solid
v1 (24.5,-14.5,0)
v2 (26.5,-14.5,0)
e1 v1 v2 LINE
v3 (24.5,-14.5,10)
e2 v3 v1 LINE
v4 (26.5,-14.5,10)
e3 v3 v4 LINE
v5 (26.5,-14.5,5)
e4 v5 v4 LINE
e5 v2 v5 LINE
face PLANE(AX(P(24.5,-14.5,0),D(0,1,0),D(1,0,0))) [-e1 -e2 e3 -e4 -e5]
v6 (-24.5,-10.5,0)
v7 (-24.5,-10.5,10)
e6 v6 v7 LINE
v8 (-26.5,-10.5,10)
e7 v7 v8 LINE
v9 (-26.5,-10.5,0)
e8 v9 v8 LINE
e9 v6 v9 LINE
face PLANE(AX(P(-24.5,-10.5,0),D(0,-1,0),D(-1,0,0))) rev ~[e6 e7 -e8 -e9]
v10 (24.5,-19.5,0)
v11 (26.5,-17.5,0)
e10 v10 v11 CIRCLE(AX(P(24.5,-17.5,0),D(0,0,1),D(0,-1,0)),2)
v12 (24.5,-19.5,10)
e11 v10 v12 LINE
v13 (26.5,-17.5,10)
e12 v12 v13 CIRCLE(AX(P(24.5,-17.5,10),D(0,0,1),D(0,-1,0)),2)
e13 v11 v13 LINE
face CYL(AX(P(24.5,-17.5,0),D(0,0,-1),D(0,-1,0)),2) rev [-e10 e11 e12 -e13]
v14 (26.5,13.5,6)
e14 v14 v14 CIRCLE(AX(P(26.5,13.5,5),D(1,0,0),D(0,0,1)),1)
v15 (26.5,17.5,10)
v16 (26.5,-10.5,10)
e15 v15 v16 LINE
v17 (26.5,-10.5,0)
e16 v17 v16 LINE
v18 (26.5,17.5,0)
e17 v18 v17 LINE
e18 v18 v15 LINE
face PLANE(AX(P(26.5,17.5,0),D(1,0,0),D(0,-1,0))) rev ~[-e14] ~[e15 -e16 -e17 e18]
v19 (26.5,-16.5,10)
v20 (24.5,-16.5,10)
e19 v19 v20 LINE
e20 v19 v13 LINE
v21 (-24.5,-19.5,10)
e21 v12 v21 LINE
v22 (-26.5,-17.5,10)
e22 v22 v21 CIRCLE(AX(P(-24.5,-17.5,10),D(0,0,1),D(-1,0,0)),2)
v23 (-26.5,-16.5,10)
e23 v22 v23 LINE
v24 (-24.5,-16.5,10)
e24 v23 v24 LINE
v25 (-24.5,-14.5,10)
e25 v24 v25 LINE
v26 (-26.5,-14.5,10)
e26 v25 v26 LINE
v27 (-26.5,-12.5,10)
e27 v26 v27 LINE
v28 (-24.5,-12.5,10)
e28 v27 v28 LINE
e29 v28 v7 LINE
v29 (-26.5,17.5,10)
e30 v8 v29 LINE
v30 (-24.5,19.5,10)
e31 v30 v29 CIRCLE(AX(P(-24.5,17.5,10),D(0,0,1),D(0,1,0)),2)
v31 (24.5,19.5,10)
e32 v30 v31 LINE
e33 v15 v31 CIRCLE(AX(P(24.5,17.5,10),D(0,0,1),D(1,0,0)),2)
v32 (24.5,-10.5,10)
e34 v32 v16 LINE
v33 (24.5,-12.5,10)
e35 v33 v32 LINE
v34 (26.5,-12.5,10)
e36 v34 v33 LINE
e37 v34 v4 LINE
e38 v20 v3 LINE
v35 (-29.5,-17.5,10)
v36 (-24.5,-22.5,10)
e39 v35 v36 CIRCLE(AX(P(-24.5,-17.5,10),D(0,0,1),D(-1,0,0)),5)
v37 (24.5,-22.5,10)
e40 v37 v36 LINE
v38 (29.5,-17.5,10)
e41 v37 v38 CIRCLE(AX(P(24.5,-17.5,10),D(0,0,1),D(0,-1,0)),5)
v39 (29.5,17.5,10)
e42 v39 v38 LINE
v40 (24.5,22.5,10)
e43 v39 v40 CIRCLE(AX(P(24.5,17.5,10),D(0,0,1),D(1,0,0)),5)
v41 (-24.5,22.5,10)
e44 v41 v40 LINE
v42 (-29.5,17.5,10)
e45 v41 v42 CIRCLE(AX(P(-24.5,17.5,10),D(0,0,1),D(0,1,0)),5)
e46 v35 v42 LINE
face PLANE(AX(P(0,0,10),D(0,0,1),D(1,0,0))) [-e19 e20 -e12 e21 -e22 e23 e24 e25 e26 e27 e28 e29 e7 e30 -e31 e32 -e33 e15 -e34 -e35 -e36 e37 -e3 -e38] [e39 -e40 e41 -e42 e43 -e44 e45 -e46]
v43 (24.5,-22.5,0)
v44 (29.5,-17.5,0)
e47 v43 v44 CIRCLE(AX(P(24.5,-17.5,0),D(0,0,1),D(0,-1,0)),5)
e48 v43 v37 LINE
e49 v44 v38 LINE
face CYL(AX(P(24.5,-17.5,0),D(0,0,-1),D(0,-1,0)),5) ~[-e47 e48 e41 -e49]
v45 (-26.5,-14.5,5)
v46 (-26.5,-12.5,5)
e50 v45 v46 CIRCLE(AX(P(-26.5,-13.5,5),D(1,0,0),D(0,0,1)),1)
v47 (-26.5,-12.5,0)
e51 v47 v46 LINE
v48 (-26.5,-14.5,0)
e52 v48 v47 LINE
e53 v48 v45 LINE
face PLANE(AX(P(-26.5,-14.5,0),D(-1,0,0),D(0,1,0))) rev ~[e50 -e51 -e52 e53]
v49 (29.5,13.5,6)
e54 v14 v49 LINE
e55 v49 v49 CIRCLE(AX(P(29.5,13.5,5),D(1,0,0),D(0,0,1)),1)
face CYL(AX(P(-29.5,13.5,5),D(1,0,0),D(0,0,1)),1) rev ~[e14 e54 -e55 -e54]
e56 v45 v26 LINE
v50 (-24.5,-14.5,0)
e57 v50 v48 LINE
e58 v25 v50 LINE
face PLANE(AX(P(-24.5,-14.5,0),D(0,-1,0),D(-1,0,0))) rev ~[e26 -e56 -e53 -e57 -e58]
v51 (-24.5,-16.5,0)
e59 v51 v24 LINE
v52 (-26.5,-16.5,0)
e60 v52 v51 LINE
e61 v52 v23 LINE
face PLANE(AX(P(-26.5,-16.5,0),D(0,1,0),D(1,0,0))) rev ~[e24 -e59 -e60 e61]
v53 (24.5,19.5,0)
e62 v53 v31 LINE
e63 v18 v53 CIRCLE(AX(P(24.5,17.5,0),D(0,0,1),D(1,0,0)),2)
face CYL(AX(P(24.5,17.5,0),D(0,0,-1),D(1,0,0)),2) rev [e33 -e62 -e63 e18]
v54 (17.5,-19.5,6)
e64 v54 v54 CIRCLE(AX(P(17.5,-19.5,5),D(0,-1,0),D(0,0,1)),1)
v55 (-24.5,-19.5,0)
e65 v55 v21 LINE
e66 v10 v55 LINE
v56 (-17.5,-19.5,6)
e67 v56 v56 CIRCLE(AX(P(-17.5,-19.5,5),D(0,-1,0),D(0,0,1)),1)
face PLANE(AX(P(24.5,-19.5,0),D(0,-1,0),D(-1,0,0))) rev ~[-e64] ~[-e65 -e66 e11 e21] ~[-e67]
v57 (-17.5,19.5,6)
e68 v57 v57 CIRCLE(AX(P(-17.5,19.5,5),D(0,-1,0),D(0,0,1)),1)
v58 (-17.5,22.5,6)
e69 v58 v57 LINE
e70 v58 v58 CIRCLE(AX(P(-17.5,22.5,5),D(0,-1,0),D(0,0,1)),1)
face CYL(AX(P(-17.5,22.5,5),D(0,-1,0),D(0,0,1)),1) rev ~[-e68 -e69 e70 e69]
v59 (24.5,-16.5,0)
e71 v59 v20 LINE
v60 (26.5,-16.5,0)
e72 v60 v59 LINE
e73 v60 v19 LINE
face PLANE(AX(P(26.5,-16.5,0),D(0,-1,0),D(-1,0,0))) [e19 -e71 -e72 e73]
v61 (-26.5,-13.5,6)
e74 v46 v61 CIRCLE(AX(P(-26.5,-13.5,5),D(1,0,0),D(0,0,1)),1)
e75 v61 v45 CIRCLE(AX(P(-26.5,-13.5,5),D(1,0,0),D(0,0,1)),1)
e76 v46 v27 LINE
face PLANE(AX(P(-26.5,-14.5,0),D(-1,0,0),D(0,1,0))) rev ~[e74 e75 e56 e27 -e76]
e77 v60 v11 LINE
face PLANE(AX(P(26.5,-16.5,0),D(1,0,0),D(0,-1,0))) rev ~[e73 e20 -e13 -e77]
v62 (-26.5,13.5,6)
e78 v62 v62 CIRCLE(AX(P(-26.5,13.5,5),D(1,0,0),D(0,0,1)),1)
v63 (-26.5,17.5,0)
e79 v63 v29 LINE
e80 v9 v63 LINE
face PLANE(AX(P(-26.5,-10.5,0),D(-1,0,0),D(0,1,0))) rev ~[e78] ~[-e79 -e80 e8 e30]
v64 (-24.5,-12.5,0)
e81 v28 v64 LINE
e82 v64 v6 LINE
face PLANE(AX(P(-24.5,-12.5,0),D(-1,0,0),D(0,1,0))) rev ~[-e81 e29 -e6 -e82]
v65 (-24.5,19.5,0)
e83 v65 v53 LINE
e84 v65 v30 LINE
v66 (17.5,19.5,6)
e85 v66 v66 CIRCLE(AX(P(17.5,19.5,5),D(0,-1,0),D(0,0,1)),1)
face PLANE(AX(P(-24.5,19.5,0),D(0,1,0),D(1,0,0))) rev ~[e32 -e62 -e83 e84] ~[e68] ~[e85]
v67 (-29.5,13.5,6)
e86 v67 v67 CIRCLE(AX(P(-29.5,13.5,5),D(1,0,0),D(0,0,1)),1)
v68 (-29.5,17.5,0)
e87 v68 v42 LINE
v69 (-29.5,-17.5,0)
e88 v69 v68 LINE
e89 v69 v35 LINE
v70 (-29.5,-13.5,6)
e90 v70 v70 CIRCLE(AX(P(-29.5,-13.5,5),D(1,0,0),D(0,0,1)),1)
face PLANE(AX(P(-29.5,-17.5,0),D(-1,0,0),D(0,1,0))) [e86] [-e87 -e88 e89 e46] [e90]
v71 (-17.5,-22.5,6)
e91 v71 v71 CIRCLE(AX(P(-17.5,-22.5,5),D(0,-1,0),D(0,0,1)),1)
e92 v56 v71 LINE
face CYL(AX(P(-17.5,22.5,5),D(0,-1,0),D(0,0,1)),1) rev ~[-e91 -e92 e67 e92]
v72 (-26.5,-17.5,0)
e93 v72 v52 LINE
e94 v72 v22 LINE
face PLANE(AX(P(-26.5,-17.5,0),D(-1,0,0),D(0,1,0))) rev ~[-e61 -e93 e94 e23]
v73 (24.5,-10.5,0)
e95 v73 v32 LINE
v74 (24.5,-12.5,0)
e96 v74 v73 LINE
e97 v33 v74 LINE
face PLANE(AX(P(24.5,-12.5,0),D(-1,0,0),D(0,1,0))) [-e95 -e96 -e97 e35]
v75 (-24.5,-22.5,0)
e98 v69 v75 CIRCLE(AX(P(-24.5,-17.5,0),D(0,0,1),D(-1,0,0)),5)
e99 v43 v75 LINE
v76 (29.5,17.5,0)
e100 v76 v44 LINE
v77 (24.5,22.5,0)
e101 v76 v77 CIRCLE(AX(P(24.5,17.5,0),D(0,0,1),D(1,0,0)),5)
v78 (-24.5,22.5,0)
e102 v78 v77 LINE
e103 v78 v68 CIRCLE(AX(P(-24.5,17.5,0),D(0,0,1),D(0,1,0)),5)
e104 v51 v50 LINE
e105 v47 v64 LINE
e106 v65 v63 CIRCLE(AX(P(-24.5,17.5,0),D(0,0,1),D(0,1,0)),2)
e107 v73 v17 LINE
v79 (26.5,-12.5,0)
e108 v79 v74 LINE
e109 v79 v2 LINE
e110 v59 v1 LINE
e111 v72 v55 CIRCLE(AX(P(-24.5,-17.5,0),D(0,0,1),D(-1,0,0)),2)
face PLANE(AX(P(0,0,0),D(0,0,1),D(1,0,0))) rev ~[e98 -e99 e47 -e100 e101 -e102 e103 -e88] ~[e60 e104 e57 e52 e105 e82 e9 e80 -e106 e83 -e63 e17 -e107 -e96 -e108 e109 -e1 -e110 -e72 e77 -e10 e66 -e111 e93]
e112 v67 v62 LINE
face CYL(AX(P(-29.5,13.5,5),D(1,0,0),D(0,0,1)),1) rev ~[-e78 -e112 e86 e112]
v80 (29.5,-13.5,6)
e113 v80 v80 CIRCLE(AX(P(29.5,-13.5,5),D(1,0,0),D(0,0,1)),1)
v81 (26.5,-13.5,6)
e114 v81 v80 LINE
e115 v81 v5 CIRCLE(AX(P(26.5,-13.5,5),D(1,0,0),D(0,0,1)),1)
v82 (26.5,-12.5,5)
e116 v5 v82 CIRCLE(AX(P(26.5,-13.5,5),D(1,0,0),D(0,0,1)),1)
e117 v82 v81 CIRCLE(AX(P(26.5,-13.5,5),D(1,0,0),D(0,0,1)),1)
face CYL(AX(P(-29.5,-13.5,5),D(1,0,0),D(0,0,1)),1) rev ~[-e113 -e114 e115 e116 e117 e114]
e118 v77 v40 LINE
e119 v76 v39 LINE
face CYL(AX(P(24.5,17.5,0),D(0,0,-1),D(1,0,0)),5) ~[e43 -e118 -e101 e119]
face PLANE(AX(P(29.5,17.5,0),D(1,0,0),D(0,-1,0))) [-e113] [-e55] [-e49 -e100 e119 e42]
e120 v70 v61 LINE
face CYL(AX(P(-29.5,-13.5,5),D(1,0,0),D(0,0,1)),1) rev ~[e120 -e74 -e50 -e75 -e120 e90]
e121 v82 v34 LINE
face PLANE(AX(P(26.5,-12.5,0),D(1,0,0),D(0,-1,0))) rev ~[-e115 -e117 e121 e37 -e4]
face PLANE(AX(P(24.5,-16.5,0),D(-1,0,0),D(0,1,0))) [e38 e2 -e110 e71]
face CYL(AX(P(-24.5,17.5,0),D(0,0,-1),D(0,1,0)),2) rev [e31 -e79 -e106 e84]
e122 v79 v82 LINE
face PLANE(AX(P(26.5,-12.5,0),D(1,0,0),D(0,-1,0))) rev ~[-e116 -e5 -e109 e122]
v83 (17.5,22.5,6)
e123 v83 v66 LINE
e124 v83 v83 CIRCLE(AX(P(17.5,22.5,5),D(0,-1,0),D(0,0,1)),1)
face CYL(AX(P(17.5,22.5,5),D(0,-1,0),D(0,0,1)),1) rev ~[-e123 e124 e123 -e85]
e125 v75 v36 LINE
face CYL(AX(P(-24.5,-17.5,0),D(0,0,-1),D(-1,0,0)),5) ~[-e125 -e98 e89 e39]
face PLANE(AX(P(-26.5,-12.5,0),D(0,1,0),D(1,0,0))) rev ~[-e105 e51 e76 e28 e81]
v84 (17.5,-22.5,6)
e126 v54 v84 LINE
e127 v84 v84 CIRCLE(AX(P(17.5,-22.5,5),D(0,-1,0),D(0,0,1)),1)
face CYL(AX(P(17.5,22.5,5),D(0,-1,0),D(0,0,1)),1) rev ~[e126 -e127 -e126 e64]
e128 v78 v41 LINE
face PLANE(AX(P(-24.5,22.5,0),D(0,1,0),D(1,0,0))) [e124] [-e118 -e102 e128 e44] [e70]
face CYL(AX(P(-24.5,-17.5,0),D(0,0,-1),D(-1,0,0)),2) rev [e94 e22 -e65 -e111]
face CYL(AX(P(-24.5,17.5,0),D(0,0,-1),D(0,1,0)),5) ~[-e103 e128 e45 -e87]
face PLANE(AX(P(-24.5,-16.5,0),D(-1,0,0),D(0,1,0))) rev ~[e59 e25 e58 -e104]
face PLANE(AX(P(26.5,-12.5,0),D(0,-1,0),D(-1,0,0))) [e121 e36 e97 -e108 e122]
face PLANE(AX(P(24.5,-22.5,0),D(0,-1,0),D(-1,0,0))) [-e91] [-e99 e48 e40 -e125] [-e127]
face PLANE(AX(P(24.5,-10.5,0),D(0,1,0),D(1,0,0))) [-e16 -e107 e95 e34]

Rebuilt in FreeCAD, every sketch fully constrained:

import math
import FreeCAD as App
import Part
import Sketcher
from FreeCAD import Vector

doc = App.newDocument("Part")
body = doc.addObject("PartDesign::Body", "Body")

# Sketch on XY plane
sketch1 = body.newObject("Sketcher::SketchObject", "Sketch")
sketch1.AttachmentSupport = (doc.getObject("XY_Plane"), [""])
sketch1.MapMode = "FlatFace"
sketch1.addGeometry(Part.LineSegment(Vector(24.5, 22.5, 0), Vector(-24.5, 22.5, 0)), False)
sketch1.addGeometry(Part.ArcOfCircle(Part.Circle(Vector(-24.5, 17.5, 0), Vector(0, 0, 1), 5), math.radians(90), math.radians(180)), False)
sketch1.addGeometry(Part.LineSegment(Vector(-29.5, 17.5, 0), Vector(-29.5, -17.5, 0)), False)
sketch1.addGeometry(Part.ArcOfCircle(Part.Circle(Vector(-24.5, -17.5, 0), Vector(0, 0, 1), 5), math.radians(180), math.radians(270)), False)
sketch1.addGeometry(Part.LineSegment(Vector(-24.5, -22.5, 0), Vector(24.5, -22.5, 0)), False)
sketch1.addGeometry(Part.ArcOfCircle(Part.Circle(Vector(24.5, -17.5, 0), Vector(0, 0, 1), 5), math.radians(-90), math.radians(0)), False)
sketch1.addGeometry(Part.LineSegment(Vector(29.5, -17.5, 0), Vector(29.5, 17.5, 0)), False)
sketch1.addGeometry(Part.ArcOfCircle(Part.Circle(Vector(24.5, 17.5, 0), Vector(0, 0, 1), 5), math.radians(0), math.radians(90)), False)
sketch1.addGeometry(Part.ArcOfCircle(Part.Circle(Vector(-24.5, 17.5, 0), Vector(0, 0, 1), 2), math.radians(90), math.radians(180)), False)
sketch1.addGeometry(Part.LineSegment(Vector(-24.5, 19.5, 0), Vector(24.5, 19.5, 0)), False)
sketch1.addGeometry(Part.ArcOfCircle(Part.Circle(Vector(24.5, 17.5, 0), Vector(0, 0, 1), 2), math.radians(0), math.radians(90)), False)
sketch1.addGeometry(Part.LineSegment(Vector(26.5, 17.5, 0), Vector(26.5, -10.5, 0)), False)
sketch1.addGeometry(Part.LineSegment(Vector(26.5, -10.5, 0), Vector(24.5, -10.5, 0)), False)
sketch1.addGeometry(Part.LineSegment(Vector(24.5, -10.5, 0), Vector(24.5, -12.5, 0)), False)
sketch1.addGeometry(Part.LineSegment(Vector(24.5, -12.5, 0), Vector(26.5, -12.5, 0)), False)
sketch1.addGeometry(Part.LineSegment(Vector(26.5, -12.5, 0), Vector(26.5, -14.5, 0)), False)
sketch1.addGeometry(Part.LineSegment(Vector(26.5, -14.5, 0), Vector(24.5, -14.5, 0)), False)
sketch1.addGeometry(Part.LineSegment(Vector(24.5, -14.5, 0), Vector(24.5, -16.5, 0)), False)
sketch1.addGeometry(Part.LineSegment(Vector(24.5, -16.5, 0), Vector(26.5, -16.5, 0)), False)
sketch1.addGeometry(Part.LineSegment(Vector(26.5, -16.5, 0), Vector(26.5, -17.5, 0)), False)
sketch1.addGeometry(Part.ArcOfCircle(Part.Circle(Vector(24.5, -17.5, 0), Vector(0, 0, 1), 2), math.radians(-90), math.radians(0)), False)
sketch1.addGeometry(Part.LineSegment(Vector(24.5, -19.5, 0), Vector(-24.5, -19.5, 0)), False)
sketch1.addGeometry(Part.ArcOfCircle(Part.Circle(Vector(-24.5, -17.5, 0), Vector(0, 0, 1), 2), math.radians(180), math.radians(270)), False)
sketch1.addGeometry(Part.LineSegment(Vector(-26.5, -17.5, 0), Vector(-26.5, -16.5, 0)), False)
sketch1.addGeometry(Part.LineSegment(Vector(-26.5, -16.5, 0), Vector(-24.5, -16.5, 0)), False)
sketch1.addGeometry(Part.LineSegment(Vector(-24.5, -16.5, 0), Vector(-24.5, -14.5, 0)), False)
sketch1.addGeometry(Part.LineSegment(Vector(-24.5, -14.5, 0), Vector(-26.5, -14.5, 0)), False)
sketch1.addGeometry(Part.LineSegment(Vector(-26.5, -14.5, 0), Vector(-26.5, -12.5, 0)), False)
sketch1.addGeometry(Part.LineSegment(Vector(-26.5, -12.5, 0), Vector(-24.5, -12.5, 0)), False)
sketch1.addGeometry(Part.LineSegment(Vector(-24.5, -12.5, 0), Vector(-24.5, -10.5, 0)), False)
sketch1.addGeometry(Part.LineSegment(Vector(-24.5, -10.5, 0), Vector(-26.5, -10.5, 0)), False)
sketch1.addGeometry(Part.LineSegment(Vector(-26.5, -10.5, 0), Vector(-26.5, 17.5, 0)), False)
sketch1.addConstraint(Sketcher.Constraint("Tangent", 0, 2, 1, 1))
sketch1.addConstraint(Sketcher.Constraint("Tangent", 1, 2, 2, 1))
sketch1.addConstraint(Sketcher.Constraint("Tangent", 2, 2, 3, 1))
sketch1.addConstraint(Sketcher.Constraint("Tangent", 3, 2, 4, 1))
sketch1.addConstraint(Sketcher.Constraint("Tangent", 4, 2, 5, 1))
sketch1.addConstraint(Sketcher.Constraint("Tangent", 5, 2, 6, 1))
sketch1.addConstraint(Sketcher.Constraint("Tangent", 6, 2, 7, 1))
sketch1.addConstraint(Sketcher.Constraint("Tangent", 7, 2, 0, 1))
sketch1.addConstraint(Sketcher.Constraint("Tangent", 8, 1, 9, 1))
sketch1.addConstraint(Sketcher.Constraint("Tangent", 9, 2, 10, 2))
sketch1.addConstraint(Sketcher.Constraint("Tangent", 10, 1, 11, 1))
sketch1.addConstraint(Sketcher.Constraint("Coincident", 11, 2, 12, 1))
sketch1.addConstraint(Sketcher.Constraint("Coincident", 12, 2, 13, 1))
sketch1.addConstraint(Sketcher.Constraint("Coincident", 13, 2, 14, 1))
sketch1.addConstraint(Sketcher.Constraint("Coincident", 14, 2, 15, 1))
sketch1.addConstraint(Sketcher.Constraint("Coincident", 15, 2, 16, 1))
sketch1.addConstraint(Sketcher.Constraint("Coincident", 16, 2, 17, 1))
sketch1.addConstraint(Sketcher.Constraint("Coincident", 17, 2, 18, 1))
sketch1.addConstraint(Sketcher.Constraint("Coincident", 18, 2, 19, 1))
sketch1.addConstraint(Sketcher.Constraint("Tangent", 19, 2, 20, 2))
sketch1.addConstraint(Sketcher.Constraint("Tangent", 20, 1, 21, 1))
sketch1.addConstraint(Sketcher.Constraint("Tangent", 21, 2, 22, 2))
sketch1.addConstraint(Sketcher.Constraint("Tangent", 22, 1, 23, 1))
sketch1.addConstraint(Sketcher.Constraint("Coincident", 23, 2, 24, 1))
sketch1.addConstraint(Sketcher.Constraint("Coincident", 24, 2, 25, 1))
sketch1.addConstraint(Sketcher.Constraint("Coincident", 25, 2, 26, 1))
sketch1.addConstraint(Sketcher.Constraint("Coincident", 26, 2, 27, 1))
sketch1.addConstraint(Sketcher.Constraint("Coincident", 27, 2, 28, 1))
sketch1.addConstraint(Sketcher.Constraint("Coincident", 28, 2, 29, 1))
sketch1.addConstraint(Sketcher.Constraint("Coincident", 29, 2, 30, 1))
sketch1.addConstraint(Sketcher.Constraint("Coincident", 30, 2, 31, 1))
sketch1.addConstraint(Sketcher.Constraint("Tangent", 31, 2, 8, 2))
sketch1.addConstraint(Sketcher.Constraint("Horizontal", 0))
sketch1.addConstraint(Sketcher.Constraint("Vertical", 2))
sketch1.addConstraint(Sketcher.Constraint("Horizontal", 4))
sketch1.addConstraint(Sketcher.Constraint("Vertical", 6))
sketch1.addConstraint(Sketcher.Constraint("Horizontal", 9))
sketch1.addConstraint(Sketcher.Constraint("Vertical", 11))
sketch1.addConstraint(Sketcher.Constraint("Horizontal", 12))
sketch1.addConstraint(Sketcher.Constraint("Vertical", 13))
sketch1.addConstraint(Sketcher.Constraint("Horizontal", 14))
sketch1.addConstraint(Sketcher.Constraint("Vertical", 15))
sketch1.addConstraint(Sketcher.Constraint("Horizontal", 16))
sketch1.addConstraint(Sketcher.Constraint("Vertical", 17))
sketch1.addConstraint(Sketcher.Constraint("Horizontal", 18))
sketch1.addConstraint(Sketcher.Constraint("Vertical", 19))
sketch1.addConstraint(Sketcher.Constraint("Horizontal", 21))
sketch1.addConstraint(Sketcher.Constraint("Vertical", 23))
sketch1.addConstraint(Sketcher.Constraint("Horizontal", 24))
sketch1.addConstraint(Sketcher.Constraint("Vertical", 25))
sketch1.addConstraint(Sketcher.Constraint("Horizontal", 26))
sketch1.addConstraint(Sketcher.Constraint("Vertical", 27))
sketch1.addConstraint(Sketcher.Constraint("Horizontal", 28))
sketch1.addConstraint(Sketcher.Constraint("Vertical", 29))
sketch1.addConstraint(Sketcher.Constraint("Horizontal", 30))
sketch1.addConstraint(Sketcher.Constraint("Vertical", 31))
sketch1.addConstraint(Sketcher.Constraint("Coincident", 8, 3, 1, 3))
sketch1.addConstraint(Sketcher.Constraint("Coincident", 10, 3, 7, 3))
sketch1.addConstraint(Sketcher.Constraint("Coincident", 20, 3, 5, 3))
sketch1.addConstraint(Sketcher.Constraint("Coincident", 22, 3, 3, 3))
sketch1.addConstraint(Sketcher.Constraint("Equal", 1, 3))
sketch1.addConstraint(Sketcher.Constraint("Equal", 3, 5))
sketch1.addConstraint(Sketcher.Constraint("Equal", 5, 7))
sketch1.addConstraint(Sketcher.Constraint("Equal", 10, 20))
sketch1.addConstraint(Sketcher.Constraint("Symmetric", 1, 3, 5, 3, -1, 1))
sketch1.addConstraint(Sketcher.Constraint("Symmetric", 17, 2, 24, 2, -2))
sketch1.addConstraint(Sketcher.Constraint("Symmetric", 15, 2, 26, 2, -2))
sketch1.addConstraint(Sketcher.Constraint("Symmetric", 13, 2, 28, 2, -2))
sketch1.addConstraint(Sketcher.Constraint("Horizontal", 12, 2, 29, 2))
sketch1.addConstraint(Sketcher.Constraint("Vertical", 9, 2, 12, 2))
sketch1.addConstraint(Sketcher.Constraint("Vertical", 11, 2, 14, 2))
sketch1.addConstraint(Sketcher.Constraint("Vertical", 13, 2, 16, 2))
sketch1.addConstraint(Sketcher.Constraint("Equal", 30, 13))
sketch1.addConstraint(Sketcher.Constraint("Equal", 13, 15))
sketch1.addConstraint(Sketcher.Constraint("Equal", 15, 17))
sketch1.addConstraint(Sketcher.Constraint("Radius", 1, 5.0))
sketch1.addConstraint(Sketcher.Constraint("Radius", 8, 2.0))
sketch1.addConstraint(Sketcher.Constraint("DistanceY", 5, 3, 13, 2, 5.0))
sketch1.addConstraint(Sketcher.Constraint("DistanceX", 0, 2, 0, 1, 49.0))
sketch1.addConstraint(Sketcher.Constraint("DistanceY", 2, 2, 2, 1, 35.0))
pad1 = body.newObject("PartDesign::Pad", "Pad")
pad1.Profile = sketch1
pad1.Length = 10

# Sketch on XZ plane
sketch2 = body.newObject("Sketcher::SketchObject", "Sketch001")
sketch2.AttachmentSupport = (doc.getObject("XZ_Plane"), [""])
sketch2.MapMode = "FlatFace"
sketch2.AttachmentOffset = App.Placement(Vector(0, 0, -22.5), App.Rotation())
sketch2.addGeometry(Part.Circle(Vector(-17.5, 5, 0), Vector(0, 0, 1), 1), False)
sketch2.addGeometry(Part.Circle(Vector(17.5, 5, 0), Vector(0, 0, 1), 1), False)
sketch2.addConstraint(Sketcher.Constraint("Equal", 0, 1))
sketch2.addConstraint(Sketcher.Constraint("Symmetric", 0, 3, 1, 3, -2))
sketch2.addConstraint(Sketcher.Constraint("Diameter", 0, 2.0))
sketch2.addConstraint(Sketcher.Constraint("DistanceY", -1, 1, 0, 3, 5.0))
sketch2.addConstraint(Sketcher.Constraint("DistanceX", 0, 3, 1, 3, 35.0))
doc.recompute()
hole = body.newObject("PartDesign::Hole", "Hole")
hole.Profile = sketch2
hole.ThreadType = "None"
hole.Diameter = 2
hole.DepthType = "ThroughAll"
hole.Reversed = True

# Sketch on YZ plane
sketch3 = body.newObject("Sketcher::SketchObject", "Sketch002")
sketch3.AttachmentSupport = (doc.getObject("YZ_Plane"), [""])
sketch3.MapMode = "FlatFace"
sketch3.AttachmentOffset = App.Placement(Vector(0, 0, -29.5), App.Rotation())
sketch3.addGeometry(Part.Circle(Vector(13.5, 5, 0), Vector(0, 0, 1), 1), False)
sketch3.addGeometry(Part.Circle(Vector(-13.5, 5, 0), Vector(0, 0, 1), 1), False)
sketch3.addConstraint(Sketcher.Constraint("Equal", 0, 1))
sketch3.addConstraint(Sketcher.Constraint("Symmetric", 0, 3, 1, 3, -2))
sketch3.addConstraint(Sketcher.Constraint("Diameter", 0, 2.0))
sketch3.addConstraint(Sketcher.Constraint("DistanceY", -1, 1, 0, 3, 5.0))
sketch3.addConstraint(Sketcher.Constraint("DistanceX", 1, 3, 0, 3, 27.0))
doc.recompute()
hole2 = body.newObject("PartDesign::Hole", "Hole001")
hole2.Profile = sketch3
hole2.ThreadType = "None"
hole2.Diameter = 2
hole2.DepthType = "ThroughAll"
hole2.Reversed = True

doc.recompute()
